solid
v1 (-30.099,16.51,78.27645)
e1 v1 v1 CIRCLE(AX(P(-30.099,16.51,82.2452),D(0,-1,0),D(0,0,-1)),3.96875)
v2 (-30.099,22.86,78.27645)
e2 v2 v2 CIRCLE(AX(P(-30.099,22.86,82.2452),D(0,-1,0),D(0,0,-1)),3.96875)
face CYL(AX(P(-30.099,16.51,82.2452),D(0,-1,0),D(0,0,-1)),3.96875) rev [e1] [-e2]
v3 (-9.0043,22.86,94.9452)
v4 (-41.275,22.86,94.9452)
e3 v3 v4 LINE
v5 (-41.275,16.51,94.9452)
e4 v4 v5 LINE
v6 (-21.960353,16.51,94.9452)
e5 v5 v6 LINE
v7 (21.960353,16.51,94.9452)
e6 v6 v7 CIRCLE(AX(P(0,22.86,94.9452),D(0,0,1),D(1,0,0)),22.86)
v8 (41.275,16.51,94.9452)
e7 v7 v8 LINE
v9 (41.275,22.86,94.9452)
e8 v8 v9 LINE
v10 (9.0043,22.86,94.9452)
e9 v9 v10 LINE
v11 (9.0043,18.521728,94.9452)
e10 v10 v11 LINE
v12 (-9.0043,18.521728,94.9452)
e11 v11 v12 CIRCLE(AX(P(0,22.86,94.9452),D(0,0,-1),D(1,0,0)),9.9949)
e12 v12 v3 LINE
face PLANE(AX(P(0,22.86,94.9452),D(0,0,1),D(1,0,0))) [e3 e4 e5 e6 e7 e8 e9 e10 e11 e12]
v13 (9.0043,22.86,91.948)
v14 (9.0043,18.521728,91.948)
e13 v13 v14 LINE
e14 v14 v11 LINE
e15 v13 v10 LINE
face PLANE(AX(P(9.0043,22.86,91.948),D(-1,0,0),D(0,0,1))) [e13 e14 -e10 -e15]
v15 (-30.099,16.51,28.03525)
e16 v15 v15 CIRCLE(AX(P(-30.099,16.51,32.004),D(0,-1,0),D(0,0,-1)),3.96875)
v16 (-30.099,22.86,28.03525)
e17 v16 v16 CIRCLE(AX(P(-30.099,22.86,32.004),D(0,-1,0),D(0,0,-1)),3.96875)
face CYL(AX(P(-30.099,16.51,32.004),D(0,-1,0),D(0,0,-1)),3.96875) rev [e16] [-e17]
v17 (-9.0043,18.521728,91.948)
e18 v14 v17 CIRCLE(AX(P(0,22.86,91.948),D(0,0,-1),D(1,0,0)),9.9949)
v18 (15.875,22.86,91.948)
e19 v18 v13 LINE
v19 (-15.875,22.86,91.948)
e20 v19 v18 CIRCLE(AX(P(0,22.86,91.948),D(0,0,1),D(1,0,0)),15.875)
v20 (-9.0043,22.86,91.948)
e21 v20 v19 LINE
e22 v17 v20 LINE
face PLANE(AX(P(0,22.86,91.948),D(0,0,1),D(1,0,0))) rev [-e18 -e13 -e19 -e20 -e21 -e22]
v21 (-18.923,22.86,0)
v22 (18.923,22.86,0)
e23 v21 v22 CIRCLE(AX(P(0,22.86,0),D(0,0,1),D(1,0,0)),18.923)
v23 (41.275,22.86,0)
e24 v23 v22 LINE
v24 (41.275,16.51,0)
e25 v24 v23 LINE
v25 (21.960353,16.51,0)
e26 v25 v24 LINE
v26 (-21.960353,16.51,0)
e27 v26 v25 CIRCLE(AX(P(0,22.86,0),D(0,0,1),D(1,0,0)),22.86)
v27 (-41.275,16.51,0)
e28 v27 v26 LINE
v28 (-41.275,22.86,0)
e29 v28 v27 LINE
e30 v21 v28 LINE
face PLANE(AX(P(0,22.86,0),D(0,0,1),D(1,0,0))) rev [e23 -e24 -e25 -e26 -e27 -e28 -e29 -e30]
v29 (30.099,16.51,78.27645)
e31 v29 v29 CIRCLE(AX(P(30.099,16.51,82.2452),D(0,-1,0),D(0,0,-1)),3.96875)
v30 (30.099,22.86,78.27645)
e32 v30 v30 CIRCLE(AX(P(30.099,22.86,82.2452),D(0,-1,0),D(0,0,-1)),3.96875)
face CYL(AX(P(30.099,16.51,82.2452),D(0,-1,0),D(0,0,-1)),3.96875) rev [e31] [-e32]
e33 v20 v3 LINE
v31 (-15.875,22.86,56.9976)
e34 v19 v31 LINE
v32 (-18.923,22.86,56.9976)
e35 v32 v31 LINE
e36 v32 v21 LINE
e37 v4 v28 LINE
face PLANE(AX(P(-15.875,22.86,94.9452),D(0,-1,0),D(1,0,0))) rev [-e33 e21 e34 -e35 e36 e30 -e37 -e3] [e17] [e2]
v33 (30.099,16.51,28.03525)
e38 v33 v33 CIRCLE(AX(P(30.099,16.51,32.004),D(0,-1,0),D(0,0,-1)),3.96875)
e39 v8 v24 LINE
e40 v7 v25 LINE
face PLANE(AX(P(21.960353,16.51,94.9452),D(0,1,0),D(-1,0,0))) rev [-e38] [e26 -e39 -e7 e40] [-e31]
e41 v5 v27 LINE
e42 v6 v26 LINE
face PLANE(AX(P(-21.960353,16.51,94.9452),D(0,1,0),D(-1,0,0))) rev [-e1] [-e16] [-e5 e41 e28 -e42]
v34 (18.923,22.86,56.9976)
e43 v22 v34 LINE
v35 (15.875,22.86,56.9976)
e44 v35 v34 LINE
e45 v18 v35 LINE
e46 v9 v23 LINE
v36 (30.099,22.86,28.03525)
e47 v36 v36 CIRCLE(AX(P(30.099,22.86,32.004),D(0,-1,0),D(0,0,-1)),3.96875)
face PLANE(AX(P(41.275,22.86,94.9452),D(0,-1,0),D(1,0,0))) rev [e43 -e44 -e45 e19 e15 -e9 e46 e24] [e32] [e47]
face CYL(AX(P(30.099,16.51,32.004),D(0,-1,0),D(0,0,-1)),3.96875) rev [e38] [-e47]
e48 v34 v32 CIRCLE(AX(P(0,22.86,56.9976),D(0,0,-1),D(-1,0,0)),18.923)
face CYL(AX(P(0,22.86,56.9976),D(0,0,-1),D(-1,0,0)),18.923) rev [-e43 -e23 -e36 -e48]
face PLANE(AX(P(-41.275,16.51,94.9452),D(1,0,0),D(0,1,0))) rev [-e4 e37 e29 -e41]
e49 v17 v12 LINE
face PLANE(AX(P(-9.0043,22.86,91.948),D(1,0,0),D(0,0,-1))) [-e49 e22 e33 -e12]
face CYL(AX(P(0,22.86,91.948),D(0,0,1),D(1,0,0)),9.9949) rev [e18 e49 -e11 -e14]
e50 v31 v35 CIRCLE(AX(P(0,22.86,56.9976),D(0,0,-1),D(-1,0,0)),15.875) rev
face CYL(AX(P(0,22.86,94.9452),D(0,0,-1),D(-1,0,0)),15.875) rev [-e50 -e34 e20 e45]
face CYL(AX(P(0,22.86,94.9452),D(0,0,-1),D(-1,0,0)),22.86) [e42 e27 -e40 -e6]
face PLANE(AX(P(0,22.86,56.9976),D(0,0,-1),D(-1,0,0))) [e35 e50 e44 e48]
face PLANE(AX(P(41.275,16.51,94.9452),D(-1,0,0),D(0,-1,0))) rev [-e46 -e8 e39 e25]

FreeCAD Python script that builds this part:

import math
import FreeCAD as App
import Part
import Sketcher
from FreeCAD import Vector
Q = App.Units.Quantity

doc = App.newDocument("Part")
body = doc.addObject("PartDesign::Body", "Body")

# Sketch on XY plane
sketch1 = body.newObject("Sketcher::SketchObject", "Sketch")
sketch1.AttachmentSupport = (doc.getObject("XY_Plane"), [""])
sketch1.MapMode = "FlatFace"
sketch1.addGeometry([
    Part.LineSegment(Vector(22, 17, 0), Vector(41, 17, 0)),  # 0
    Part.LineSegment(Vector(41, 17, 0), Vector(41, 23, 0)),  # 1
    Part.LineSegment(Vector(41, 23, 0), Vector(16, 23, 0)),  # 2
    Part.ArcOfCircle(Part.Circle(Vector(0, 23, 0), Vector(0, 0, 1), 16), math.radians(180), math.radians(360)),  # 3
    Part.LineSegment(Vector(-16, 23, 0), Vector(-41, 23, 0)),  # 4
    Part.LineSegment(Vector(-41, 23, 0), Vector(-41, 17, 0)),  # 5
    Part.LineSegment(Vector(-41, 17, 0), Vector(-22, 17, 0)),  # 6
    Part.ArcOfCircle(Part.Circle(Vector(0, 23, 0), Vector(0, 0, 1), 23), math.radians(-164), math.radians(-16)),  # 7
], False)
sketch1.addConstraint([
    Sketcher.Constraint("Coincident", 0, 2, 1, 1),
    Sketcher.Constraint("Coincident", 1, 2, 2, 1),
    Sketcher.Constraint("Coincident", 2, 2, 3, 2),
    Sketcher.Constraint("Coincident", 3, 1, 4, 1),
    Sketcher.Constraint("Coincident", 4, 2, 5, 1),
    Sketcher.Constraint("Coincident", 5, 2, 6, 1),
    Sketcher.Constraint("Coincident", 6, 2, 7, 1),
    Sketcher.Constraint("Coincident", 7, 2, 0, 1),
    Sketcher.Constraint("Horizontal", 0),
    Sketcher.Constraint("Vertical", 1),
    Sketcher.Constraint("Horizontal", 2),
    Sketcher.Constraint("Horizontal", 4),
    Sketcher.Constraint("Vertical", 5),
    Sketcher.Constraint("Horizontal", 6),
    Sketcher.Constraint("Coincident", 7, 3, 3, 3),
    Sketcher.Constraint("Symmetric", 2, 2, 3, 1, -2),
    Sketcher.Constraint("Symmetric", 0, 2, 5, 2, -2),
    Sketcher.Constraint("Horizontal", 7, 3, 1, 2),
    Sketcher.Constraint("Radius", 7, Q("0.9 in")),
    Sketcher.Constraint("DistanceX", 2, 2, 2, 1, Q("1 in")),
    Sketcher.Constraint("Radius", 3, Q("0.625 in")),
    Sketcher.Constraint("DistanceY", 1, 1, 1, 2, Q("0.25 in")),
    Sketcher.Constraint("DistanceY", -1, 1, 3, 3, Q("0.9 in")),
])
pad1 = body.newObject("PartDesign::Pad", "Pad")
pad1.Profile = sketch1
pad1.Length = Q("3.738 in")

# Sketch on XY plane
sketch2 = body.newObject("Sketcher::SketchObject", "Sketch001")
sketch2.AttachmentSupport = (doc.getObject("XY_Plane"), [""])
sketch2.MapMode = "FlatFace"
sketch2.addGeometry(Part.Circle(Vector(0, 23, 0), Vector(0, 0, 1), 19), False)
sketch2.addConstraint([
    Sketcher.Constraint("PointOnObject", 0, 3, -2),
    Sketcher.Constraint("Diameter", 0, Q("1.49 in")),
    Sketcher.Constraint("DistanceY", -1, 1, 0, 3, Q("0.9 in")),
])
pocket1 = body.newObject("PartDesign::Pocket", "Pocket")
pocket1.Profile = sketch2
pocket1.Length = Q("2.244 in")
pocket1.Reversed = True

# Sketch on XY plane
sketch3 = body.newObject("Sketcher::SketchObject", "Sketch002")
sketch3.AttachmentSupport = (doc.getObject("XY_Plane"), [""])
sketch3.MapMode = "FlatFace"
sketch3.AttachmentOffset = App.Placement(Vector(0, 0, 3.62 * 25.4), App.Rotation())
sketch3.addGeometry([
    Part.LineSegment(Vector(-9, 22.9, 0), Vector(-15.9, 22.9, 0)),  # 0
    Part.ArcOfCircle(Part.Circle(Vector(0, 22.9, 0), Vector(0, 0, 1), 15.9), math.radians(180), math.radians(360)),  # 1
    Part.LineSegment(Vector(15.9, 22.9, 0), Vector(9, 22.9, 0)),  # 2
    Part.LineSegment(Vector(9, 22.9, 0), Vector(9, 18.5, 0)),  # 3
    Part.ArcOfCircle(Part.Circle(Vector(0, 22.9, 0), Vector(0, 0, 1), 10), math.radians(-154), math.radians(-26)),  # 4
    Part.LineSegment(Vector(-9, 18.5, 0), Vector(-9, 22.9, 0)),  # 5
], False)
sketch3.addConstraint([
    Sketcher.Constraint("Coincident", 0, 2, 1, 1),
    Sketcher.Constraint("Coincident", 1, 2, 2, 1),
    Sketcher.Constraint("Coincident", 2, 2, 3, 1),
    Sketcher.Constraint("Coincident", 3, 2, 4, 2),
    Sketcher.Constraint("Coincident", 4, 1, 5, 1),
    Sketcher.Constraint("Coincident", 5, 2, 0, 1),
    Sketcher.Constraint("Horizontal", 0),
    Sketcher.Constraint("Horizontal", 2),
    Sketcher.Constraint("Vertical", 3),
    Sketcher.Constraint("Vertical", 5),
    Sketcher.Constraint("Coincident", 4, 3, 1, 3),
    Sketcher.Constraint("Symmetric", 0, 2, 1, 2, -2),
    Sketcher.Constraint("Horizontal", 4, 3, 0, 2),
    Sketcher.Constraint("Horizontal", 3, 2, 4, 1),
    Sketcher.Constraint("Radius", 1, Q("0.625 in")),
    Sketcher.Constraint("DistanceY", -1, 1, 1, 3, Q("0.9 in")),
    Sketcher.Constraint("Radius", 4, Q("0.3935 in")),
    Sketcher.Constraint("DistanceX", 0, 2, 0, 1, Q("0.2705 in")),
])
pad2 = body.newObject("PartDesign::Pad", "Pad001")
pad2.Profile = sketch3
pad2.Length = Q("0.118 in")

# Sketch on XZ plane
sketch4 = body.newObject("Sketcher::SketchObject", "Sketch003")
sketch4.AttachmentSupport = (doc.getObject("XZ_Plane"), [""])
sketch4.MapMode = "FlatFace"
sketch4.AttachmentOffset = App.Placement(Vector(0, 0, -0.65 * 25.4), App.Rotation())
sketch4.addGeometry([
    Part.Circle(Vector(-30.1, 32, 0), Vector(0, 0, 1), 4),
    Part.Circle(Vector(-30.1, 82.2, 0), Vector(0, 0, 1), 4),
], False)
sketch4.addConstraint([
    Sketcher.Constraint("Equal", 0, 1),
    Sketcher.Constraint("Vertical", 0, 3, 1, 3),
    Sketcher.Constraint("Diameter", 0, Q("0.3125 in")),
    Sketcher.Constraint("DistanceY", -1, 1, 0, 3, Q("1.26 in")),
    Sketcher.Constraint("DistanceX", 0, 3, -1, 1, Q("1.185 in")),
    Sketcher.Constraint("DistanceY", -1, 1, 1, 3, Q("3.238 in")),
])
doc.recompute()
hole = body.newObject("PartDesign::Hole", "Hole")
hole.Profile = sketch4
hole.ThreadType = "None"
hole.Diameter = Q("0.3125 in")
hole.DepthType = "ThroughAll"
doc.recompute()

mirrored = body.newObject("PartDesign::Mirrored", "Mirrored")
mirrored.Originals = [hole]
mirrored.MirrorPlane = (doc.getObject("YZ_Plane"), [""])
body.Tip = mirrored

doc.recompute()
